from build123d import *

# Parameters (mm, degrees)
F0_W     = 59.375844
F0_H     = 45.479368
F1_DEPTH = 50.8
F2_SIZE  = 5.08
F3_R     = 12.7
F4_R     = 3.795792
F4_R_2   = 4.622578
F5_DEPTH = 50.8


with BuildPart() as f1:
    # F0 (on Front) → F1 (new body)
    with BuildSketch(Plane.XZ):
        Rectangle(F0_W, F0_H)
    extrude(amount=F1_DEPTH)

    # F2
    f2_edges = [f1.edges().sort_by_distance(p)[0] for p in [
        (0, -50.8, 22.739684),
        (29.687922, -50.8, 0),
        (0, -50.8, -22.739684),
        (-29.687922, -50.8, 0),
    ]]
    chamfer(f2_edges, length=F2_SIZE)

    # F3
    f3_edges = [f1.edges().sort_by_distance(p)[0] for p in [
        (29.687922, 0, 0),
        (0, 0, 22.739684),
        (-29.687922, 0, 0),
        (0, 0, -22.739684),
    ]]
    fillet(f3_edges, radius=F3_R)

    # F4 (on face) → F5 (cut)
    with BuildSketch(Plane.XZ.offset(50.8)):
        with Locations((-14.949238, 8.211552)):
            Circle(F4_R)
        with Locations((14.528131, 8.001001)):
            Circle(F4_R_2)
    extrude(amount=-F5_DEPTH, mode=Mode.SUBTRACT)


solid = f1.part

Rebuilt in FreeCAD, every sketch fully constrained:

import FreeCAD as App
import Part
import Sketcher

V = App.Vector
Q = App.Units.Quantity


def edges_at(feature, points):
    """Names of the edges that pass closest to the given points."""
    edges = feature.Shape.Edges
    near = lambda p: min(range(len(edges)), key=lambda i: edges[i].distToShape(Part.Vertex(*p))[0])
    return sorted({f"Edge{near(p) + 1}" for p in points})

doc = App.newDocument("Part")
body = doc.addObject("PartDesign::Body", "Body")

# Sketch on XZ plane
sketch1 = body.newObject("Sketcher::SketchObject", "Sketch")
sketch1.AttachmentSupport = (doc.getObject("XZ_Plane"), [""])
sketch1.MapMode = "FlatFace"
sketch1.addGeometry(Part.LineSegment(V(-30, 23, 0), V(-30, -23, 0)), False)
sketch1.addGeometry(Part.LineSegment(V(-30, -23, 0), V(30, -23, 0)), False)
sketch1.addGeometry(Part.LineSegment(V(30, -23, 0), V(30, 23, 0)), False)
sketch1.addGeometry(Part.LineSegment(V(30, 23, 0), V(-30, 23, 0)), False)
sketch1.addConstraint(Sketcher.Constraint("Coincident", 0, 2, 1, 1))
sketch1.addConstraint(Sketcher.Constraint("Coincident", 1, 2, 2, 1))
sketch1.addConstraint(Sketcher.Constraint("Coincident", 2, 2, 3, 1))
sketch1.addConstraint(Sketcher.Constraint("Coincident", 3, 2, 0, 1))
sketch1.addConstraint(Sketcher.Constraint("Vertical", 0))
sketch1.addConstraint(Sketcher.Constraint("Horizontal", 1))
sketch1.addConstraint(Sketcher.Constraint("Vertical", 2))
sketch1.addConstraint(Sketcher.Constraint("Horizontal", 3))
sketch1.addConstraint(Sketcher.Constraint("Symmetric", 0, 2, 2, 2, -1, 1))
sketch1.addConstraint(Sketcher.Constraint("DistanceX", 1, 1, 1, 2, 59.375844))
sketch1.addConstraint(Sketcher.Constraint("DistanceY", 0, 2, 0, 1, 45.479368))
pad1 = body.newObject("PartDesign::Pad", "Pad")
pad1.Profile = sketch1
pad1.Length = Q("2 in")
doc.recompute()

chamfer = body.newObject("PartDesign::Chamfer", "Chamfer")
chamfer.Base = (pad1, edges_at(pad1, [
    (0, -50.8, 22.74),
    (29.688, -50.8, 0),
    (0, -50.8, -22.74),
    (-29.688, -50.8, 0),
]))
chamfer.Size = Q("0.2 in")
doc.recompute()

fillet = body.newObject("PartDesign::Fillet", "Fillet")
fillet.Base = (chamfer, edges_at(chamfer, [
    (29.688, 0, 0),
    (0, 0, 22.74),
    (-29.688, 0, 0),
    (0, 0, -22.74),
]))
fillet.Radius = Q("0.5 in")

# Sketch on XZ plane
sketch2 = body.newObject("Sketcher::SketchObject", "Sketch001")
sketch2.AttachmentSupport = (doc.getObject("XZ_Plane"), [""])
sketch2.MapMode = "FlatFace"
sketch2.AttachmentOffset = App.Placement(V(0, 0, 2 * 25.4), App.Rotation())
sketch2.addGeometry(Part.Circle(V(-14.9, 8.2, 0), V(0, 0, 1), 3.8), False)
sketch2.addGeometry(Part.Circle(V(14.5, 8, 0), V(0, 0, 1), 4.6), False)
sketch2.addConstraint(Sketcher.Constraint("DistanceY", -1, 1, 1, 3, Q("0.315 in")))
sketch2.addConstraint(Sketcher.Constraint("Diameter", 0, 7.591584))
sketch2.addConstraint(Sketcher.Constraint("Diameter", 1, 9.245156))
sketch2.addConstraint(Sketcher.Constraint("DistanceY", -1, 1, 0, 3, 8.211552))
sketch2.addConstraint(Sketcher.Constraint("DistanceX", -1, 1, 1, 3, 14.528131))
sketch2.addConstraint(Sketcher.Constraint("DistanceX", 0, 3, 1, 3, 29.477369))
pocket1 = body.newObject("PartDesign::Pocket", "Pocket")
pocket1.Profile = sketch2
pocket1.Length = Q("2 in")

doc.recompute()
